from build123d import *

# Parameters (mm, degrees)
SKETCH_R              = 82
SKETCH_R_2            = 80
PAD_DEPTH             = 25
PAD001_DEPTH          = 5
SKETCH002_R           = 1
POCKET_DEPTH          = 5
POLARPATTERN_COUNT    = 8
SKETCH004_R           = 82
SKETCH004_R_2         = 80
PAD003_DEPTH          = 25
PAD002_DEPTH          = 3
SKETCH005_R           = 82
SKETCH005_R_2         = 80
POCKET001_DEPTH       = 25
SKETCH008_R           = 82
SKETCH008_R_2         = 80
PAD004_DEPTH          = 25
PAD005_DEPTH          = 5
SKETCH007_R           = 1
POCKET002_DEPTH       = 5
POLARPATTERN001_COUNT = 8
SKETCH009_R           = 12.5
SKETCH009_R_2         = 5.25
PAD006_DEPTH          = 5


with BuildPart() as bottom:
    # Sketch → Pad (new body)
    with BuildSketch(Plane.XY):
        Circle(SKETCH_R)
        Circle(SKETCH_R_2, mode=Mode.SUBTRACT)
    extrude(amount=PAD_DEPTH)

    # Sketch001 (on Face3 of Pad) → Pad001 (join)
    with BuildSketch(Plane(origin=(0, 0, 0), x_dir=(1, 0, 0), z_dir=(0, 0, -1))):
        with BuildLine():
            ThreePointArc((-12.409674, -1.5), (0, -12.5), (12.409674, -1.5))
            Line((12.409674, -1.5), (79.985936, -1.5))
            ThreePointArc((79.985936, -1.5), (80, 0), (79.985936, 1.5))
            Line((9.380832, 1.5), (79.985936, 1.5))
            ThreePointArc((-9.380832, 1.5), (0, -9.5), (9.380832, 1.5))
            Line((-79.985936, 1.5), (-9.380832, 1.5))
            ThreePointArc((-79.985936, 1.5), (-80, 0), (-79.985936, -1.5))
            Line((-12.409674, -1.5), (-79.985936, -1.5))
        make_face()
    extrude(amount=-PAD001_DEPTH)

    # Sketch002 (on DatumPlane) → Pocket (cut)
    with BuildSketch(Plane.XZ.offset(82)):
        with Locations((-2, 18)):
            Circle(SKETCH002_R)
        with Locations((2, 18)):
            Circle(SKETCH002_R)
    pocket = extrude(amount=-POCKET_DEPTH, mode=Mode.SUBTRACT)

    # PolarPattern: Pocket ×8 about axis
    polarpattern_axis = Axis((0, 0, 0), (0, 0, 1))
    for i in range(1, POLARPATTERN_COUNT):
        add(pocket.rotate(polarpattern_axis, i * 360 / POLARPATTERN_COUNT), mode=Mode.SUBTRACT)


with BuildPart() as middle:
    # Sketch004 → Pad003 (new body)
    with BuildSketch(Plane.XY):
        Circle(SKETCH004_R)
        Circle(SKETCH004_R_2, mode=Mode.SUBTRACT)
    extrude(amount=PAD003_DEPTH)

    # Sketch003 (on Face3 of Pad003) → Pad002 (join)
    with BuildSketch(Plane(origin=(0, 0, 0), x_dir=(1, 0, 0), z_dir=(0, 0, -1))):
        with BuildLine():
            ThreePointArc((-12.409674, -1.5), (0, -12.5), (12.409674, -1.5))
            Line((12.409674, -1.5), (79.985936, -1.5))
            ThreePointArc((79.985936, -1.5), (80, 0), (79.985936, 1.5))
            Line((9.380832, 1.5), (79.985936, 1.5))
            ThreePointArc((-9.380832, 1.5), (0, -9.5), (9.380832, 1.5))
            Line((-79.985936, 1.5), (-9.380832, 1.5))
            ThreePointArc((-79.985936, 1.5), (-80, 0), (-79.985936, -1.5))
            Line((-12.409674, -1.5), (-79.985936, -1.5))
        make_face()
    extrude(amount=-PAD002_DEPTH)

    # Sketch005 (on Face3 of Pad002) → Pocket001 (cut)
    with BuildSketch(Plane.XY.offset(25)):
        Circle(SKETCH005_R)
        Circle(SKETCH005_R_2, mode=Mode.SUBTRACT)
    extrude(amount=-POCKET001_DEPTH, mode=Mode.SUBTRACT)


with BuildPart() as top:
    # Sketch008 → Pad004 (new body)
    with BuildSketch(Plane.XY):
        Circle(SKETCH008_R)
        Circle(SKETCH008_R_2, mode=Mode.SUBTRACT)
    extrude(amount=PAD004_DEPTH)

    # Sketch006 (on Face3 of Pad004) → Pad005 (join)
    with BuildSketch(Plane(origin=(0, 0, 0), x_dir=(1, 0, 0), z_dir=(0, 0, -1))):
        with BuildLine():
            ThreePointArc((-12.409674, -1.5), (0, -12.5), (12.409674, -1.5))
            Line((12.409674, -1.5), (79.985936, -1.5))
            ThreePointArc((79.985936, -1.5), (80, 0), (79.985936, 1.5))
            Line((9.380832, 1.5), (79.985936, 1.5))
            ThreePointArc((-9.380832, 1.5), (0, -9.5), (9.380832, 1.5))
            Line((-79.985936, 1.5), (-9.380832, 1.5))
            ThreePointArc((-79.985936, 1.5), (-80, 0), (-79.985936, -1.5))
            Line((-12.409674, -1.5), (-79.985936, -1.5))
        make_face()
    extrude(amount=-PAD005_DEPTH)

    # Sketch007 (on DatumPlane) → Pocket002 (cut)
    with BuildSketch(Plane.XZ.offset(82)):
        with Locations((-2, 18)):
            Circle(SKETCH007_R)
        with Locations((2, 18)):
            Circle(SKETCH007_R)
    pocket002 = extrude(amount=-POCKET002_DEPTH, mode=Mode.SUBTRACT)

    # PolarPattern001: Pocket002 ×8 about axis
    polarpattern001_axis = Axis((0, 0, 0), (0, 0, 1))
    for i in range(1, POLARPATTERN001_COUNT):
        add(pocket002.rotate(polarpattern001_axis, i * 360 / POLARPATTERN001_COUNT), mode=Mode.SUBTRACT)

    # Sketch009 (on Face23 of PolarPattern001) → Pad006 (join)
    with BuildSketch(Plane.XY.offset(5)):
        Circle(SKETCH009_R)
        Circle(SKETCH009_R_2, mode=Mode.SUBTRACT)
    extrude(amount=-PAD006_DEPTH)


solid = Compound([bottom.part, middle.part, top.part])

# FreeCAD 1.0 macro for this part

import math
import FreeCAD as App
import Part
import Sketcher
from FreeCAD import Vector

doc = App.newDocument("Part")
params = doc.addObject("Spreadsheet::Sheet", "Params")
for row, (alias, value) in enumerate([
    ("sketch1_diameter", "164 mm"),
    ("sketch1_diameter2", "160 mm"),
    ("pad1_length", "25 mm"),
    ("sketch2_radius", "12.5 mm"),
    ("sketch2_radius2", "9.5 mm"),
    ("pad2_length", "5 mm"),
    ("sketch3_diameter", "2 mm"),
    ("pocket1_length", "5 mm"),
    ("sketch4_diameter", "164 mm"),
    ("sketch4_diameter2", "160 mm"),
    ("pad3_length", "25 mm"),
    ("sketch5_radius", "12.5 mm"),
    ("sketch5_radius2", "9.5 mm"),
    ("pad4_length", "3 mm"),
    ("sketch6_diameter", "164 mm"),
    ("sketch6_diameter2", "160 mm"),
    ("pocket2_length", "25 mm"),
    ("sketch7_diameter", "164 mm"),
    ("sketch7_diameter2", "160 mm"),
    ("pad5_length", "25 mm"),
    ("sketch8_radius", "12.5 mm"),
    ("sketch8_radius2", "9.5 mm"),
    ("pad6_length", "5 mm"),
    ("sketch9_diameter", "2 mm"),
    ("pocket3_length", "5 mm"),
    ("sketch10_diameter", "25 mm"),
    ("sketch10_diameter2", "10.5 mm"),
    ("pad7_length", "5 mm"),
], start=1):
    params.set(f"A{row}", alias)
    params.set(f"B{row}", "=" + value)
    params.setAlias(f"B{row}", alias)

body = doc.addObject("PartDesign::Body", "Body")

sketch1 = body.newObject("Sketcher::SketchObject", "Sketch")
sketch1.AttachmentSupport = (doc.getObject("XY_Plane"), [""])
sketch1.MapMode = "FlatFace"
sketch1.addGeometry([
    Part.Circle(Vector(0, 0, 0), Vector(0, 0, 1), 82),
    Part.Circle(Vector(0, 0, 0), Vector(0, 0, 1), 80),
], False)
sketch1.addConstraint([
    Sketcher.Constraint("Coincident", 0, 3, -1, 1),
    Sketcher.Constraint("Coincident", 1, 3, -1, 1),
    Sketcher.Constraint("Diameter", 0, 164.0),
    Sketcher.Constraint("Diameter", 1, 160.0),
])
sketch1.setExpression("Constraints[2]", "Params.sketch1_diameter")
sketch1.setExpression("Constraints[3]", "Params.sketch1_diameter2")
pad1 = body.newObject("PartDesign::Pad", "Pad")
pad1.Profile = sketch1
pad1.setExpression("Length", "Params.pad1_length")

sketch2 = body.newObject("Sketcher::SketchObject", "Sketch001")
sketch2.AttachmentSupport = (doc.getObject("XY_Plane"), [""])
sketch2.MapMode = "FlatFace"
sketch2.addGeometry([
    Part.ArcOfCircle(Part.Circle(Vector(0, 0, 0), Vector(0, 0, 1), 12.5), math.radians(6.892104), math.radians(173.107896)),
    Part.LineSegment(Vector(12.409674, 1.5, 0), Vector(79.985936, 1.5, 0)),
    Part.ArcOfCircle(Part.Circle(Vector(0.0015, 0, 0), Vector(0, 0, 1), 79.9985), math.radians(-1.074379), math.radians(1.074379)),
    Part.LineSegment(Vector(79.985936, -1.5, 0), Vector(9.380832, -1.5, 0)),
    Part.ArcOfCircle(Part.Circle(Vector(0, 0, 0), Vector(0, 0, 1), 9.5), math.radians(-9.084717), math.radians(189.084717)),
    Part.LineSegment(Vector(-9.380832, -1.5, 0), Vector(-79.985936, -1.5, 0)),
    Part.ArcOfCircle(Part.Circle(Vector(-0.0015, 0, 0), Vector(0, 0, 1), 79.9985), math.radians(178.925621), math.radians(181.074379)),
    Part.LineSegment(Vector(-79.985936, 1.5, 0), Vector(-12.409674, 1.5, 0)),
], False)
sketch2.addConstraint([
    Sketcher.Constraint("Coincident", 0, 1, 1, 1),
    Sketcher.Constraint("Coincident", 1, 2, 2, 2),
    Sketcher.Constraint("Coincident", 2, 1, 3, 1),
    Sketcher.Constraint("Coincident", 3, 2, 4, 1),
    Sketcher.Constraint("Coincident", 4, 2, 5, 1),
    Sketcher.Constraint("Coincident", 5, 2, 6, 2),
    Sketcher.Constraint("Coincident", 6, 1, 7, 1),
    Sketcher.Constraint("Coincident", 7, 2, 0, 2),
    Sketcher.Constraint("Horizontal", 1),
    Sketcher.Constraint("Horizontal", 3),
    Sketcher.Constraint("Horizontal", 5),
    Sketcher.Constraint("Horizontal", 7),
    Sketcher.Constraint("Coincident", 0, 3, -1, 1),
    Sketcher.Constraint("Coincident", 4, 3, -1, 1),
    Sketcher.Constraint("Equal", 2, 6),
    Sketcher.Constraint("Symmetric", 2, 3, 6, 3, -1, 1),
    Sketcher.Constraint("Symmetric", 2, 1, 5, 2, -2),
    Sketcher.Constraint("Horizontal", 1, 2, 6, 1),
    Sketcher.Constraint("Vertical", 1, 2, 2, 1),
    Sketcher.Constraint("Radius", 0, 12.5),
    Sketcher.Constraint("Radius", 4, 9.5),
    Sketcher.Constraint("DistanceY", 2, 1, 1, 2, 3.0),
    Sketcher.Constraint("Radius", 2, 79.9985),
    Sketcher.Constraint("DistanceX", 6, 3, 2, 3, 0.003001),
])
sketch2.setExpression("Constraints[19]", "Params.sketch2_radius")
sketch2.setExpression("Constraints[20]", "Params.sketch2_radius2")
pad2 = body.newObject("PartDesign::Pad", "Pad001")
pad2.Profile = sketch2
pad2.setExpression("Length", "Params.pad2_length")

sketch3 = body.newObject("Sketcher::SketchObject", "Sketch002")
sketch3.AttachmentSupport = (doc.getObject("XZ_Plane"), [""])
sketch3.MapMode = "FlatFace"
sketch3.AttachmentOffset = App.Placement(Vector(0, 0, 82), App.Rotation())
sketch3.addGeometry([
    Part.Circle(Vector(-2, 18, 0), Vector(0, 0, 1), 1),
    Part.Circle(Vector(2, 18, 0), Vector(0, 0, 1), 1),
], False)
sketch3.addConstraint([
    Sketcher.Constraint("Equal", 0, 1),
    Sketcher.Constraint("Symmetric", 0, 3, 1, 3, -2),
    Sketcher.Constraint("Diameter", 0, 2.0),
    Sketcher.Constraint("DistanceX", 0, 3, -1, 1, 2.0),
    Sketcher.Constraint("DistanceY", -1, 1, 0, 3, 18.0),
])
sketch3.setExpression("Constraints[2]", "Params.sketch3_diameter")
pocket1 = body.newObject("PartDesign::Pocket", "Pocket")
pocket1.Profile = sketch3
pocket1.setExpression("Length", "Params.pocket1_length")
doc.recompute()

polarpattern = body.newObject("PartDesign::PolarPattern", "PolarPattern")
polarpattern.Originals = [pocket1]
polarpattern.Axis = (doc.getObject("Z_Axis"), [""])
polarpattern.Angle = 360
polarpattern.Occurrences = 8
body.Tip = polarpattern
body2 = doc.addObject("PartDesign::Body", "Body001")

sketch4 = body2.newObject("Sketcher::SketchObject", "Sketch003")
sketch4.AttachmentSupport = (doc.getObject("XY_Plane001"), [""])
sketch4.MapMode = "FlatFace"
sketch4.addGeometry([
    Part.Circle(Vector(0, 0, 0), Vector(0, 0, 1), 82),
    Part.Circle(Vector(0, 0, 0), Vector(0, 0, 1), 80),
], False)
sketch4.addConstraint([
    Sketcher.Constraint("Coincident", 0, 3, -1, 1),
    Sketcher.Constraint("Coincident", 1, 3, -1, 1),
    Sketcher.Constraint("Diameter", 0, 164.0),
    Sketcher.Constraint("Diameter", 1, 160.0),
])
sketch4.setExpression("Constraints[2]", "Params.sketch4_diameter")
sketch4.setExpression("Constraints[3]", "Params.sketch4_diameter2")
pad3 = body2.newObject("PartDesign::Pad", "Pad002")
pad3.Profile = sketch4
pad3.setExpression("Length", "Params.pad3_length")

sketch5 = body2.newObject("Sketcher::SketchObject", "Sketch004")
sketch5.AttachmentSupport = (doc.getObject("XY_Plane001"), [""])
sketch5.MapMode = "FlatFace"
sketch5.addGeometry([
    Part.ArcOfCircle(Part.Circle(Vector(0, 0, 0), Vector(0, 0, 1), 12.5), math.radians(6.892104), math.radians(173.107896)),
    Part.LineSegment(Vector(12.409674, 1.5, 0), Vector(79.985936, 1.5, 0)),
    Part.ArcOfCircle(Part.Circle(Vector(0.0015, 0, 0), Vector(0, 0, 1), 79.9985), math.radians(-1.074379), math.radians(1.074379)),
    Part.LineSegment(Vector(79.985936, -1.5, 0), Vector(9.380832, -1.5, 0)),
    Part.ArcOfCircle(Part.Circle(Vector(0, 0, 0), Vector(0, 0, 1), 9.5), math.radians(-9.084717), math.radians(189.084717)),
    Part.LineSegment(Vector(-9.380832, -1.5, 0), Vector(-79.985936, -1.5, 0)),
    Part.ArcOfCircle(Part.Circle(Vector(-0.0015, 0, 0), Vector(0, 0, 1), 79.9985), math.radians(178.925621), math.radians(181.074379)),
    Part.LineSegment(Vector(-79.985936, 1.5, 0), Vector(-12.409674, 1.5, 0)),
], False)
sketch5.addConstraint([
    Sketcher.Constraint("Coincident", 0, 1, 1, 1),
    Sketcher.Constraint("Coincident", 1, 2, 2, 2),
    Sketcher.Constraint("Coincident", 2, 1, 3, 1),
    Sketcher.Constraint("Coincident", 3, 2, 4, 1),
    Sketcher.Constraint("Coincident", 4, 2, 5, 1),
    Sketcher.Constraint("Coincident", 5, 2, 6, 2),
    Sketcher.Constraint("Coincident", 6, 1, 7, 1),
    Sketcher.Constraint("Coincident", 7, 2, 0, 2),
    Sketcher.Constraint("Horizontal", 1),
    Sketcher.Constraint("Horizontal", 3),
    Sketcher.Constraint("Horizontal", 5),
    Sketcher.Constraint("Horizontal", 7),
    Sketcher.Constraint("Coincident", 0, 3, -1, 1),
    Sketcher.Constraint("Coincident", 4, 3, -1, 1),
    Sketcher.Constraint("Equal", 2, 6),
    Sketcher.Constraint("Symmetric", 2, 3, 6, 3, -1, 1),
    Sketcher.Constraint("Symmetric", 2, 1, 5, 2, -2),
    Sketcher.Constraint("Horizontal", 1, 2, 6, 1),
    Sketcher.Constraint("Vertical", 1, 2, 2, 1),
    Sketcher.Constraint("Radius", 0, 12.5),
    Sketcher.Constraint("Radius", 4, 9.5),
    Sketcher.Constraint("DistanceY", 2, 1, 1, 2, 3.0),
    Sketcher.Constraint("Radius", 2, 79.9985),
    Sketcher.Constraint("DistanceX", 6, 3, 2, 3, 0.003001),
])
sketch5.setExpression("Constraints[19]", "Params.sketch5_radius")
sketch5.setExpression("Constraints[20]", "Params.sketch5_radius2")
pad4 = body2.newObject("PartDesign::Pad", "Pad003")
pad4.Profile = sketch5
pad4.setExpression("Length", "Params.pad4_length")

sketch6 = body2.newObject("Sketcher::SketchObject", "Sketch005")
sketch6.AttachmentSupport = (doc.getObject("XY_Plane001"), [""])
sketch6.MapMode = "FlatFace"
sketch6.AttachmentOffset = App.Placement(Vector(0, 0, 25), App.Rotation())
sketch6.addGeometry([
    Part.Circle(Vector(0, 0, 0), Vector(0, 0, 1), 82),
    Part.Circle(Vector(0, 0, 0), Vector(0, 0, 1), 80),
], False)
sketch6.addConstraint([
    Sketcher.Constraint("Coincident", 0, 3, -1, 1),
    Sketcher.Constraint("Coincident", 1, 3, -1, 1),
    Sketcher.Constraint("Diameter", 0, 164.0),
    Sketcher.Constraint("Diameter", 1, 160.0),
])
sketch6.setExpression("Constraints[2]", "Params.sketch6_diameter")
sketch6.setExpression("Constraints[3]", "Params.sketch6_diameter2")
pocket2 = body2.newObject("PartDesign::Pocket", "Pocket001")
pocket2.Profile = sketch6
pocket2.setExpression("Length", "Params.pocket2_length")
body3 = doc.addObject("PartDesign::Body", "Body002")

sketch7 = body3.newObject("Sketcher::SketchObject", "Sketch006")
sketch7.AttachmentSupport = (doc.getObject("XY_Plane002"), [""])
sketch7.MapMode = "FlatFace"
sketch7.addGeometry([
    Part.Circle(Vector(0, 0, 0), Vector(0, 0, 1), 82),
    Part.Circle(Vector(0, 0, 0), Vector(0, 0, 1), 80),
], False)
sketch7.addConstraint([
    Sketcher.Constraint("Coincident", 0, 3, -1, 1),
    Sketcher.Constraint("Coincident", 1, 3, -1, 1),
    Sketcher.Constraint("Diameter", 0, 164.0),
    Sketcher.Constraint("Diameter", 1, 160.0),
])
sketch7.setExpression("Constraints[2]", "Params.sketch7_diameter")
sketch7.setExpression("Constraints[3]", "Params.sketch7_diameter2")
pad5 = body3.newObject("PartDesign::Pad", "Pad004")
pad5.Profile = sketch7
pad5.setExpression("Length", "Params.pad5_length")

sketch8 = body3.newObject("Sketcher::SketchObject", "Sketch007")
sketch8.AttachmentSupport = (doc.getObject("XY_Plane002"), [""])
sketch8.MapMode = "FlatFace"
sketch8.addGeometry([
    Part.ArcOfCircle(Part.Circle(Vector(0, 0, 0), Vector(0, 0, 1), 12.5), math.radians(6.892104), math.radians(173.107896)),
    Part.LineSegment(Vector(12.409674, 1.5, 0), Vector(79.985936, 1.5, 0)),
    Part.ArcOfCircle(Part.Circle(Vector(0.0015, 0, 0), Vector(0, 0, 1), 79.9985), math.radians(-1.074379), math.radians(1.074379)),
    Part.LineSegment(Vector(79.985936, -1.5, 0), Vector(9.380832, -1.5, 0)),
    Part.ArcOfCircle(Part.Circle(Vector(0, 0, 0), Vector(0, 0, 1), 9.5), math.radians(-9.084717), math.radians(189.084717)),
    Part.LineSegment(Vector(-9.380832, -1.5, 0), Vector(-79.985936, -1.5, 0)),
    Part.ArcOfCircle(Part.Circle(Vector(-0.0015, 0, 0), Vector(0, 0, 1), 79.9985), math.radians(178.925621), math.radians(181.074379)),
    Part.LineSegment(Vector(-79.985936, 1.5, 0), Vector(-12.409674, 1.5, 0)),
], False)
sketch8.addConstraint([
    Sketcher.Constraint("Coincident", 0, 1, 1, 1),
    Sketcher.Constraint("Coincident", 1, 2, 2, 2),
    Sketcher.Constraint("Coincident", 2, 1, 3, 1),
    Sketcher.Constraint("Coincident", 3, 2, 4, 1),
    Sketcher.Constraint("Coincident", 4, 2, 5, 1),
    Sketcher.Constraint("Coincident", 5, 2, 6, 2),
    Sketcher.Constraint("Coincident", 6, 1, 7, 1),
    Sketcher.Constraint("Coincident", 7, 2, 0, 2),
    Sketcher.Constraint("Horizontal", 1),
    Sketcher.Constraint("Horizontal", 3),
    Sketcher.Constraint("Horizontal", 5),
    Sketcher.Constraint("Horizontal", 7),
    Sketcher.Constraint("Coincident", 0, 3, -1, 1),
    Sketcher.Constraint("Coincident", 4, 3, -1, 1),
    Sketcher.Constraint("Equal", 2, 6),
    Sketcher.Constraint("Symmetric", 2, 3, 6, 3, -1, 1),
    Sketcher.Constraint("Symmetric", 2, 1, 5, 2, -2),
    Sketcher.Constraint("Horizontal", 1, 2, 6, 1),
    Sketcher.Constraint("Vertical", 1, 2, 2, 1),
    Sketcher.Constraint("Radius", 0, 12.5),
    Sketcher.Constraint("Radius", 4, 9.5),
    Sketcher.Constraint("DistanceY", 2, 1, 1, 2, 3.0),
    Sketcher.Constraint("Radius", 2, 79.9985),
    Sketcher.Constraint("DistanceX", 6, 3, 2, 3, 0.003001),
])
sketch8.setExpression("Constraints[19]", "Params.sketch8_radius")
sketch8.setExpression("Constraints[20]", "Params.sketch8_radius2")
pad6 = body3.newObject("PartDesign::Pad", "Pad005")
pad6.Profile = sketch8
pad6.setExpression("Length", "Params.pad6_length")

sketch9 = body3.newObject("Sketcher::SketchObject", "Sketch008")
sketch9.AttachmentSupport = (doc.getObject("XZ_Plane002"), [""])
sketch9.MapMode = "FlatFace"
sketch9.AttachmentOffset = App.Placement(Vector(0, 0, 82), App.Rotation())
sketch9.addGeometry([
    Part.Circle(Vector(-2, 18, 0), Vector(0, 0, 1), 1),
    Part.Circle(Vector(2, 18, 0), Vector(0, 0, 1), 1),
], False)
sketch9.addConstraint([
    Sketcher.Constraint("Equal", 0, 1),
    Sketcher.Constraint("Symmetric", 0, 3, 1, 3, -2),
    Sketcher.Constraint("Diameter", 0, 2.0),
    Sketcher.Constraint("DistanceX", 0, 3, -1, 1, 2.0),
    Sketcher.Constraint("DistanceY", -1, 1, 0, 3, 18.0),
])
sketch9.setExpression("Constraints[2]", "Params.sketch9_diameter")
pocket3 = body3.newObject("PartDesign::Pocket", "Pocket002")
pocket3.Profile = sketch9
pocket3.setExpression("Length", "Params.pocket3_length")
doc.recompute()

polarpattern2 = body3.newObject("PartDesign::PolarPattern", "PolarPattern001")
polarpattern2.Originals = [pocket3]
polarpattern2.Axis = (doc.getObject("Z_Axis002"), [""])
polarpattern2.Angle = 360
polarpattern2.Occurrences = 8
body3.Tip = polarpattern2

sketch10 = body3.newObject("Sketcher::SketchObject", "Sketch009")
sketch10.AttachmentSupport = (doc.getObject("XY_Plane002"), [""])
sketch10.MapMode = "FlatFace"
sketch10.AttachmentOffset = App.Placement(Vector(0, 0, 5), App.Rotation())
sketch10.addGeometry([
    Part.Circle(Vector(0, 0, 0), Vector(0, 0, 1), 12),
    Part.Circle(Vector(0, 0, 0), Vector(0, 0, 1), 5),
], False)
sketch10.addConstraint([
    Sketcher.Constraint("Coincident", 0, 3, -1, 1),
    Sketcher.Constraint("Coincident", 1, 3, -1, 1),
    Sketcher.Constraint("Diameter", 0, 25.0),
    Sketcher.Constraint("Diameter", 1, 10.5),
])
sketch10.setExpression("Constraints[2]", "Params.sketch10_diameter")
sketch10.setExpression("Constraints[3]", "Params.sketch10_diameter2")
pad7 = body3.newObject("PartDesign::Pad", "Pad006")
pad7.Profile = sketch10
pad7.setExpression("Length", "Params.pad7_length")
pad7.Reversed = True

doc.recompute()
